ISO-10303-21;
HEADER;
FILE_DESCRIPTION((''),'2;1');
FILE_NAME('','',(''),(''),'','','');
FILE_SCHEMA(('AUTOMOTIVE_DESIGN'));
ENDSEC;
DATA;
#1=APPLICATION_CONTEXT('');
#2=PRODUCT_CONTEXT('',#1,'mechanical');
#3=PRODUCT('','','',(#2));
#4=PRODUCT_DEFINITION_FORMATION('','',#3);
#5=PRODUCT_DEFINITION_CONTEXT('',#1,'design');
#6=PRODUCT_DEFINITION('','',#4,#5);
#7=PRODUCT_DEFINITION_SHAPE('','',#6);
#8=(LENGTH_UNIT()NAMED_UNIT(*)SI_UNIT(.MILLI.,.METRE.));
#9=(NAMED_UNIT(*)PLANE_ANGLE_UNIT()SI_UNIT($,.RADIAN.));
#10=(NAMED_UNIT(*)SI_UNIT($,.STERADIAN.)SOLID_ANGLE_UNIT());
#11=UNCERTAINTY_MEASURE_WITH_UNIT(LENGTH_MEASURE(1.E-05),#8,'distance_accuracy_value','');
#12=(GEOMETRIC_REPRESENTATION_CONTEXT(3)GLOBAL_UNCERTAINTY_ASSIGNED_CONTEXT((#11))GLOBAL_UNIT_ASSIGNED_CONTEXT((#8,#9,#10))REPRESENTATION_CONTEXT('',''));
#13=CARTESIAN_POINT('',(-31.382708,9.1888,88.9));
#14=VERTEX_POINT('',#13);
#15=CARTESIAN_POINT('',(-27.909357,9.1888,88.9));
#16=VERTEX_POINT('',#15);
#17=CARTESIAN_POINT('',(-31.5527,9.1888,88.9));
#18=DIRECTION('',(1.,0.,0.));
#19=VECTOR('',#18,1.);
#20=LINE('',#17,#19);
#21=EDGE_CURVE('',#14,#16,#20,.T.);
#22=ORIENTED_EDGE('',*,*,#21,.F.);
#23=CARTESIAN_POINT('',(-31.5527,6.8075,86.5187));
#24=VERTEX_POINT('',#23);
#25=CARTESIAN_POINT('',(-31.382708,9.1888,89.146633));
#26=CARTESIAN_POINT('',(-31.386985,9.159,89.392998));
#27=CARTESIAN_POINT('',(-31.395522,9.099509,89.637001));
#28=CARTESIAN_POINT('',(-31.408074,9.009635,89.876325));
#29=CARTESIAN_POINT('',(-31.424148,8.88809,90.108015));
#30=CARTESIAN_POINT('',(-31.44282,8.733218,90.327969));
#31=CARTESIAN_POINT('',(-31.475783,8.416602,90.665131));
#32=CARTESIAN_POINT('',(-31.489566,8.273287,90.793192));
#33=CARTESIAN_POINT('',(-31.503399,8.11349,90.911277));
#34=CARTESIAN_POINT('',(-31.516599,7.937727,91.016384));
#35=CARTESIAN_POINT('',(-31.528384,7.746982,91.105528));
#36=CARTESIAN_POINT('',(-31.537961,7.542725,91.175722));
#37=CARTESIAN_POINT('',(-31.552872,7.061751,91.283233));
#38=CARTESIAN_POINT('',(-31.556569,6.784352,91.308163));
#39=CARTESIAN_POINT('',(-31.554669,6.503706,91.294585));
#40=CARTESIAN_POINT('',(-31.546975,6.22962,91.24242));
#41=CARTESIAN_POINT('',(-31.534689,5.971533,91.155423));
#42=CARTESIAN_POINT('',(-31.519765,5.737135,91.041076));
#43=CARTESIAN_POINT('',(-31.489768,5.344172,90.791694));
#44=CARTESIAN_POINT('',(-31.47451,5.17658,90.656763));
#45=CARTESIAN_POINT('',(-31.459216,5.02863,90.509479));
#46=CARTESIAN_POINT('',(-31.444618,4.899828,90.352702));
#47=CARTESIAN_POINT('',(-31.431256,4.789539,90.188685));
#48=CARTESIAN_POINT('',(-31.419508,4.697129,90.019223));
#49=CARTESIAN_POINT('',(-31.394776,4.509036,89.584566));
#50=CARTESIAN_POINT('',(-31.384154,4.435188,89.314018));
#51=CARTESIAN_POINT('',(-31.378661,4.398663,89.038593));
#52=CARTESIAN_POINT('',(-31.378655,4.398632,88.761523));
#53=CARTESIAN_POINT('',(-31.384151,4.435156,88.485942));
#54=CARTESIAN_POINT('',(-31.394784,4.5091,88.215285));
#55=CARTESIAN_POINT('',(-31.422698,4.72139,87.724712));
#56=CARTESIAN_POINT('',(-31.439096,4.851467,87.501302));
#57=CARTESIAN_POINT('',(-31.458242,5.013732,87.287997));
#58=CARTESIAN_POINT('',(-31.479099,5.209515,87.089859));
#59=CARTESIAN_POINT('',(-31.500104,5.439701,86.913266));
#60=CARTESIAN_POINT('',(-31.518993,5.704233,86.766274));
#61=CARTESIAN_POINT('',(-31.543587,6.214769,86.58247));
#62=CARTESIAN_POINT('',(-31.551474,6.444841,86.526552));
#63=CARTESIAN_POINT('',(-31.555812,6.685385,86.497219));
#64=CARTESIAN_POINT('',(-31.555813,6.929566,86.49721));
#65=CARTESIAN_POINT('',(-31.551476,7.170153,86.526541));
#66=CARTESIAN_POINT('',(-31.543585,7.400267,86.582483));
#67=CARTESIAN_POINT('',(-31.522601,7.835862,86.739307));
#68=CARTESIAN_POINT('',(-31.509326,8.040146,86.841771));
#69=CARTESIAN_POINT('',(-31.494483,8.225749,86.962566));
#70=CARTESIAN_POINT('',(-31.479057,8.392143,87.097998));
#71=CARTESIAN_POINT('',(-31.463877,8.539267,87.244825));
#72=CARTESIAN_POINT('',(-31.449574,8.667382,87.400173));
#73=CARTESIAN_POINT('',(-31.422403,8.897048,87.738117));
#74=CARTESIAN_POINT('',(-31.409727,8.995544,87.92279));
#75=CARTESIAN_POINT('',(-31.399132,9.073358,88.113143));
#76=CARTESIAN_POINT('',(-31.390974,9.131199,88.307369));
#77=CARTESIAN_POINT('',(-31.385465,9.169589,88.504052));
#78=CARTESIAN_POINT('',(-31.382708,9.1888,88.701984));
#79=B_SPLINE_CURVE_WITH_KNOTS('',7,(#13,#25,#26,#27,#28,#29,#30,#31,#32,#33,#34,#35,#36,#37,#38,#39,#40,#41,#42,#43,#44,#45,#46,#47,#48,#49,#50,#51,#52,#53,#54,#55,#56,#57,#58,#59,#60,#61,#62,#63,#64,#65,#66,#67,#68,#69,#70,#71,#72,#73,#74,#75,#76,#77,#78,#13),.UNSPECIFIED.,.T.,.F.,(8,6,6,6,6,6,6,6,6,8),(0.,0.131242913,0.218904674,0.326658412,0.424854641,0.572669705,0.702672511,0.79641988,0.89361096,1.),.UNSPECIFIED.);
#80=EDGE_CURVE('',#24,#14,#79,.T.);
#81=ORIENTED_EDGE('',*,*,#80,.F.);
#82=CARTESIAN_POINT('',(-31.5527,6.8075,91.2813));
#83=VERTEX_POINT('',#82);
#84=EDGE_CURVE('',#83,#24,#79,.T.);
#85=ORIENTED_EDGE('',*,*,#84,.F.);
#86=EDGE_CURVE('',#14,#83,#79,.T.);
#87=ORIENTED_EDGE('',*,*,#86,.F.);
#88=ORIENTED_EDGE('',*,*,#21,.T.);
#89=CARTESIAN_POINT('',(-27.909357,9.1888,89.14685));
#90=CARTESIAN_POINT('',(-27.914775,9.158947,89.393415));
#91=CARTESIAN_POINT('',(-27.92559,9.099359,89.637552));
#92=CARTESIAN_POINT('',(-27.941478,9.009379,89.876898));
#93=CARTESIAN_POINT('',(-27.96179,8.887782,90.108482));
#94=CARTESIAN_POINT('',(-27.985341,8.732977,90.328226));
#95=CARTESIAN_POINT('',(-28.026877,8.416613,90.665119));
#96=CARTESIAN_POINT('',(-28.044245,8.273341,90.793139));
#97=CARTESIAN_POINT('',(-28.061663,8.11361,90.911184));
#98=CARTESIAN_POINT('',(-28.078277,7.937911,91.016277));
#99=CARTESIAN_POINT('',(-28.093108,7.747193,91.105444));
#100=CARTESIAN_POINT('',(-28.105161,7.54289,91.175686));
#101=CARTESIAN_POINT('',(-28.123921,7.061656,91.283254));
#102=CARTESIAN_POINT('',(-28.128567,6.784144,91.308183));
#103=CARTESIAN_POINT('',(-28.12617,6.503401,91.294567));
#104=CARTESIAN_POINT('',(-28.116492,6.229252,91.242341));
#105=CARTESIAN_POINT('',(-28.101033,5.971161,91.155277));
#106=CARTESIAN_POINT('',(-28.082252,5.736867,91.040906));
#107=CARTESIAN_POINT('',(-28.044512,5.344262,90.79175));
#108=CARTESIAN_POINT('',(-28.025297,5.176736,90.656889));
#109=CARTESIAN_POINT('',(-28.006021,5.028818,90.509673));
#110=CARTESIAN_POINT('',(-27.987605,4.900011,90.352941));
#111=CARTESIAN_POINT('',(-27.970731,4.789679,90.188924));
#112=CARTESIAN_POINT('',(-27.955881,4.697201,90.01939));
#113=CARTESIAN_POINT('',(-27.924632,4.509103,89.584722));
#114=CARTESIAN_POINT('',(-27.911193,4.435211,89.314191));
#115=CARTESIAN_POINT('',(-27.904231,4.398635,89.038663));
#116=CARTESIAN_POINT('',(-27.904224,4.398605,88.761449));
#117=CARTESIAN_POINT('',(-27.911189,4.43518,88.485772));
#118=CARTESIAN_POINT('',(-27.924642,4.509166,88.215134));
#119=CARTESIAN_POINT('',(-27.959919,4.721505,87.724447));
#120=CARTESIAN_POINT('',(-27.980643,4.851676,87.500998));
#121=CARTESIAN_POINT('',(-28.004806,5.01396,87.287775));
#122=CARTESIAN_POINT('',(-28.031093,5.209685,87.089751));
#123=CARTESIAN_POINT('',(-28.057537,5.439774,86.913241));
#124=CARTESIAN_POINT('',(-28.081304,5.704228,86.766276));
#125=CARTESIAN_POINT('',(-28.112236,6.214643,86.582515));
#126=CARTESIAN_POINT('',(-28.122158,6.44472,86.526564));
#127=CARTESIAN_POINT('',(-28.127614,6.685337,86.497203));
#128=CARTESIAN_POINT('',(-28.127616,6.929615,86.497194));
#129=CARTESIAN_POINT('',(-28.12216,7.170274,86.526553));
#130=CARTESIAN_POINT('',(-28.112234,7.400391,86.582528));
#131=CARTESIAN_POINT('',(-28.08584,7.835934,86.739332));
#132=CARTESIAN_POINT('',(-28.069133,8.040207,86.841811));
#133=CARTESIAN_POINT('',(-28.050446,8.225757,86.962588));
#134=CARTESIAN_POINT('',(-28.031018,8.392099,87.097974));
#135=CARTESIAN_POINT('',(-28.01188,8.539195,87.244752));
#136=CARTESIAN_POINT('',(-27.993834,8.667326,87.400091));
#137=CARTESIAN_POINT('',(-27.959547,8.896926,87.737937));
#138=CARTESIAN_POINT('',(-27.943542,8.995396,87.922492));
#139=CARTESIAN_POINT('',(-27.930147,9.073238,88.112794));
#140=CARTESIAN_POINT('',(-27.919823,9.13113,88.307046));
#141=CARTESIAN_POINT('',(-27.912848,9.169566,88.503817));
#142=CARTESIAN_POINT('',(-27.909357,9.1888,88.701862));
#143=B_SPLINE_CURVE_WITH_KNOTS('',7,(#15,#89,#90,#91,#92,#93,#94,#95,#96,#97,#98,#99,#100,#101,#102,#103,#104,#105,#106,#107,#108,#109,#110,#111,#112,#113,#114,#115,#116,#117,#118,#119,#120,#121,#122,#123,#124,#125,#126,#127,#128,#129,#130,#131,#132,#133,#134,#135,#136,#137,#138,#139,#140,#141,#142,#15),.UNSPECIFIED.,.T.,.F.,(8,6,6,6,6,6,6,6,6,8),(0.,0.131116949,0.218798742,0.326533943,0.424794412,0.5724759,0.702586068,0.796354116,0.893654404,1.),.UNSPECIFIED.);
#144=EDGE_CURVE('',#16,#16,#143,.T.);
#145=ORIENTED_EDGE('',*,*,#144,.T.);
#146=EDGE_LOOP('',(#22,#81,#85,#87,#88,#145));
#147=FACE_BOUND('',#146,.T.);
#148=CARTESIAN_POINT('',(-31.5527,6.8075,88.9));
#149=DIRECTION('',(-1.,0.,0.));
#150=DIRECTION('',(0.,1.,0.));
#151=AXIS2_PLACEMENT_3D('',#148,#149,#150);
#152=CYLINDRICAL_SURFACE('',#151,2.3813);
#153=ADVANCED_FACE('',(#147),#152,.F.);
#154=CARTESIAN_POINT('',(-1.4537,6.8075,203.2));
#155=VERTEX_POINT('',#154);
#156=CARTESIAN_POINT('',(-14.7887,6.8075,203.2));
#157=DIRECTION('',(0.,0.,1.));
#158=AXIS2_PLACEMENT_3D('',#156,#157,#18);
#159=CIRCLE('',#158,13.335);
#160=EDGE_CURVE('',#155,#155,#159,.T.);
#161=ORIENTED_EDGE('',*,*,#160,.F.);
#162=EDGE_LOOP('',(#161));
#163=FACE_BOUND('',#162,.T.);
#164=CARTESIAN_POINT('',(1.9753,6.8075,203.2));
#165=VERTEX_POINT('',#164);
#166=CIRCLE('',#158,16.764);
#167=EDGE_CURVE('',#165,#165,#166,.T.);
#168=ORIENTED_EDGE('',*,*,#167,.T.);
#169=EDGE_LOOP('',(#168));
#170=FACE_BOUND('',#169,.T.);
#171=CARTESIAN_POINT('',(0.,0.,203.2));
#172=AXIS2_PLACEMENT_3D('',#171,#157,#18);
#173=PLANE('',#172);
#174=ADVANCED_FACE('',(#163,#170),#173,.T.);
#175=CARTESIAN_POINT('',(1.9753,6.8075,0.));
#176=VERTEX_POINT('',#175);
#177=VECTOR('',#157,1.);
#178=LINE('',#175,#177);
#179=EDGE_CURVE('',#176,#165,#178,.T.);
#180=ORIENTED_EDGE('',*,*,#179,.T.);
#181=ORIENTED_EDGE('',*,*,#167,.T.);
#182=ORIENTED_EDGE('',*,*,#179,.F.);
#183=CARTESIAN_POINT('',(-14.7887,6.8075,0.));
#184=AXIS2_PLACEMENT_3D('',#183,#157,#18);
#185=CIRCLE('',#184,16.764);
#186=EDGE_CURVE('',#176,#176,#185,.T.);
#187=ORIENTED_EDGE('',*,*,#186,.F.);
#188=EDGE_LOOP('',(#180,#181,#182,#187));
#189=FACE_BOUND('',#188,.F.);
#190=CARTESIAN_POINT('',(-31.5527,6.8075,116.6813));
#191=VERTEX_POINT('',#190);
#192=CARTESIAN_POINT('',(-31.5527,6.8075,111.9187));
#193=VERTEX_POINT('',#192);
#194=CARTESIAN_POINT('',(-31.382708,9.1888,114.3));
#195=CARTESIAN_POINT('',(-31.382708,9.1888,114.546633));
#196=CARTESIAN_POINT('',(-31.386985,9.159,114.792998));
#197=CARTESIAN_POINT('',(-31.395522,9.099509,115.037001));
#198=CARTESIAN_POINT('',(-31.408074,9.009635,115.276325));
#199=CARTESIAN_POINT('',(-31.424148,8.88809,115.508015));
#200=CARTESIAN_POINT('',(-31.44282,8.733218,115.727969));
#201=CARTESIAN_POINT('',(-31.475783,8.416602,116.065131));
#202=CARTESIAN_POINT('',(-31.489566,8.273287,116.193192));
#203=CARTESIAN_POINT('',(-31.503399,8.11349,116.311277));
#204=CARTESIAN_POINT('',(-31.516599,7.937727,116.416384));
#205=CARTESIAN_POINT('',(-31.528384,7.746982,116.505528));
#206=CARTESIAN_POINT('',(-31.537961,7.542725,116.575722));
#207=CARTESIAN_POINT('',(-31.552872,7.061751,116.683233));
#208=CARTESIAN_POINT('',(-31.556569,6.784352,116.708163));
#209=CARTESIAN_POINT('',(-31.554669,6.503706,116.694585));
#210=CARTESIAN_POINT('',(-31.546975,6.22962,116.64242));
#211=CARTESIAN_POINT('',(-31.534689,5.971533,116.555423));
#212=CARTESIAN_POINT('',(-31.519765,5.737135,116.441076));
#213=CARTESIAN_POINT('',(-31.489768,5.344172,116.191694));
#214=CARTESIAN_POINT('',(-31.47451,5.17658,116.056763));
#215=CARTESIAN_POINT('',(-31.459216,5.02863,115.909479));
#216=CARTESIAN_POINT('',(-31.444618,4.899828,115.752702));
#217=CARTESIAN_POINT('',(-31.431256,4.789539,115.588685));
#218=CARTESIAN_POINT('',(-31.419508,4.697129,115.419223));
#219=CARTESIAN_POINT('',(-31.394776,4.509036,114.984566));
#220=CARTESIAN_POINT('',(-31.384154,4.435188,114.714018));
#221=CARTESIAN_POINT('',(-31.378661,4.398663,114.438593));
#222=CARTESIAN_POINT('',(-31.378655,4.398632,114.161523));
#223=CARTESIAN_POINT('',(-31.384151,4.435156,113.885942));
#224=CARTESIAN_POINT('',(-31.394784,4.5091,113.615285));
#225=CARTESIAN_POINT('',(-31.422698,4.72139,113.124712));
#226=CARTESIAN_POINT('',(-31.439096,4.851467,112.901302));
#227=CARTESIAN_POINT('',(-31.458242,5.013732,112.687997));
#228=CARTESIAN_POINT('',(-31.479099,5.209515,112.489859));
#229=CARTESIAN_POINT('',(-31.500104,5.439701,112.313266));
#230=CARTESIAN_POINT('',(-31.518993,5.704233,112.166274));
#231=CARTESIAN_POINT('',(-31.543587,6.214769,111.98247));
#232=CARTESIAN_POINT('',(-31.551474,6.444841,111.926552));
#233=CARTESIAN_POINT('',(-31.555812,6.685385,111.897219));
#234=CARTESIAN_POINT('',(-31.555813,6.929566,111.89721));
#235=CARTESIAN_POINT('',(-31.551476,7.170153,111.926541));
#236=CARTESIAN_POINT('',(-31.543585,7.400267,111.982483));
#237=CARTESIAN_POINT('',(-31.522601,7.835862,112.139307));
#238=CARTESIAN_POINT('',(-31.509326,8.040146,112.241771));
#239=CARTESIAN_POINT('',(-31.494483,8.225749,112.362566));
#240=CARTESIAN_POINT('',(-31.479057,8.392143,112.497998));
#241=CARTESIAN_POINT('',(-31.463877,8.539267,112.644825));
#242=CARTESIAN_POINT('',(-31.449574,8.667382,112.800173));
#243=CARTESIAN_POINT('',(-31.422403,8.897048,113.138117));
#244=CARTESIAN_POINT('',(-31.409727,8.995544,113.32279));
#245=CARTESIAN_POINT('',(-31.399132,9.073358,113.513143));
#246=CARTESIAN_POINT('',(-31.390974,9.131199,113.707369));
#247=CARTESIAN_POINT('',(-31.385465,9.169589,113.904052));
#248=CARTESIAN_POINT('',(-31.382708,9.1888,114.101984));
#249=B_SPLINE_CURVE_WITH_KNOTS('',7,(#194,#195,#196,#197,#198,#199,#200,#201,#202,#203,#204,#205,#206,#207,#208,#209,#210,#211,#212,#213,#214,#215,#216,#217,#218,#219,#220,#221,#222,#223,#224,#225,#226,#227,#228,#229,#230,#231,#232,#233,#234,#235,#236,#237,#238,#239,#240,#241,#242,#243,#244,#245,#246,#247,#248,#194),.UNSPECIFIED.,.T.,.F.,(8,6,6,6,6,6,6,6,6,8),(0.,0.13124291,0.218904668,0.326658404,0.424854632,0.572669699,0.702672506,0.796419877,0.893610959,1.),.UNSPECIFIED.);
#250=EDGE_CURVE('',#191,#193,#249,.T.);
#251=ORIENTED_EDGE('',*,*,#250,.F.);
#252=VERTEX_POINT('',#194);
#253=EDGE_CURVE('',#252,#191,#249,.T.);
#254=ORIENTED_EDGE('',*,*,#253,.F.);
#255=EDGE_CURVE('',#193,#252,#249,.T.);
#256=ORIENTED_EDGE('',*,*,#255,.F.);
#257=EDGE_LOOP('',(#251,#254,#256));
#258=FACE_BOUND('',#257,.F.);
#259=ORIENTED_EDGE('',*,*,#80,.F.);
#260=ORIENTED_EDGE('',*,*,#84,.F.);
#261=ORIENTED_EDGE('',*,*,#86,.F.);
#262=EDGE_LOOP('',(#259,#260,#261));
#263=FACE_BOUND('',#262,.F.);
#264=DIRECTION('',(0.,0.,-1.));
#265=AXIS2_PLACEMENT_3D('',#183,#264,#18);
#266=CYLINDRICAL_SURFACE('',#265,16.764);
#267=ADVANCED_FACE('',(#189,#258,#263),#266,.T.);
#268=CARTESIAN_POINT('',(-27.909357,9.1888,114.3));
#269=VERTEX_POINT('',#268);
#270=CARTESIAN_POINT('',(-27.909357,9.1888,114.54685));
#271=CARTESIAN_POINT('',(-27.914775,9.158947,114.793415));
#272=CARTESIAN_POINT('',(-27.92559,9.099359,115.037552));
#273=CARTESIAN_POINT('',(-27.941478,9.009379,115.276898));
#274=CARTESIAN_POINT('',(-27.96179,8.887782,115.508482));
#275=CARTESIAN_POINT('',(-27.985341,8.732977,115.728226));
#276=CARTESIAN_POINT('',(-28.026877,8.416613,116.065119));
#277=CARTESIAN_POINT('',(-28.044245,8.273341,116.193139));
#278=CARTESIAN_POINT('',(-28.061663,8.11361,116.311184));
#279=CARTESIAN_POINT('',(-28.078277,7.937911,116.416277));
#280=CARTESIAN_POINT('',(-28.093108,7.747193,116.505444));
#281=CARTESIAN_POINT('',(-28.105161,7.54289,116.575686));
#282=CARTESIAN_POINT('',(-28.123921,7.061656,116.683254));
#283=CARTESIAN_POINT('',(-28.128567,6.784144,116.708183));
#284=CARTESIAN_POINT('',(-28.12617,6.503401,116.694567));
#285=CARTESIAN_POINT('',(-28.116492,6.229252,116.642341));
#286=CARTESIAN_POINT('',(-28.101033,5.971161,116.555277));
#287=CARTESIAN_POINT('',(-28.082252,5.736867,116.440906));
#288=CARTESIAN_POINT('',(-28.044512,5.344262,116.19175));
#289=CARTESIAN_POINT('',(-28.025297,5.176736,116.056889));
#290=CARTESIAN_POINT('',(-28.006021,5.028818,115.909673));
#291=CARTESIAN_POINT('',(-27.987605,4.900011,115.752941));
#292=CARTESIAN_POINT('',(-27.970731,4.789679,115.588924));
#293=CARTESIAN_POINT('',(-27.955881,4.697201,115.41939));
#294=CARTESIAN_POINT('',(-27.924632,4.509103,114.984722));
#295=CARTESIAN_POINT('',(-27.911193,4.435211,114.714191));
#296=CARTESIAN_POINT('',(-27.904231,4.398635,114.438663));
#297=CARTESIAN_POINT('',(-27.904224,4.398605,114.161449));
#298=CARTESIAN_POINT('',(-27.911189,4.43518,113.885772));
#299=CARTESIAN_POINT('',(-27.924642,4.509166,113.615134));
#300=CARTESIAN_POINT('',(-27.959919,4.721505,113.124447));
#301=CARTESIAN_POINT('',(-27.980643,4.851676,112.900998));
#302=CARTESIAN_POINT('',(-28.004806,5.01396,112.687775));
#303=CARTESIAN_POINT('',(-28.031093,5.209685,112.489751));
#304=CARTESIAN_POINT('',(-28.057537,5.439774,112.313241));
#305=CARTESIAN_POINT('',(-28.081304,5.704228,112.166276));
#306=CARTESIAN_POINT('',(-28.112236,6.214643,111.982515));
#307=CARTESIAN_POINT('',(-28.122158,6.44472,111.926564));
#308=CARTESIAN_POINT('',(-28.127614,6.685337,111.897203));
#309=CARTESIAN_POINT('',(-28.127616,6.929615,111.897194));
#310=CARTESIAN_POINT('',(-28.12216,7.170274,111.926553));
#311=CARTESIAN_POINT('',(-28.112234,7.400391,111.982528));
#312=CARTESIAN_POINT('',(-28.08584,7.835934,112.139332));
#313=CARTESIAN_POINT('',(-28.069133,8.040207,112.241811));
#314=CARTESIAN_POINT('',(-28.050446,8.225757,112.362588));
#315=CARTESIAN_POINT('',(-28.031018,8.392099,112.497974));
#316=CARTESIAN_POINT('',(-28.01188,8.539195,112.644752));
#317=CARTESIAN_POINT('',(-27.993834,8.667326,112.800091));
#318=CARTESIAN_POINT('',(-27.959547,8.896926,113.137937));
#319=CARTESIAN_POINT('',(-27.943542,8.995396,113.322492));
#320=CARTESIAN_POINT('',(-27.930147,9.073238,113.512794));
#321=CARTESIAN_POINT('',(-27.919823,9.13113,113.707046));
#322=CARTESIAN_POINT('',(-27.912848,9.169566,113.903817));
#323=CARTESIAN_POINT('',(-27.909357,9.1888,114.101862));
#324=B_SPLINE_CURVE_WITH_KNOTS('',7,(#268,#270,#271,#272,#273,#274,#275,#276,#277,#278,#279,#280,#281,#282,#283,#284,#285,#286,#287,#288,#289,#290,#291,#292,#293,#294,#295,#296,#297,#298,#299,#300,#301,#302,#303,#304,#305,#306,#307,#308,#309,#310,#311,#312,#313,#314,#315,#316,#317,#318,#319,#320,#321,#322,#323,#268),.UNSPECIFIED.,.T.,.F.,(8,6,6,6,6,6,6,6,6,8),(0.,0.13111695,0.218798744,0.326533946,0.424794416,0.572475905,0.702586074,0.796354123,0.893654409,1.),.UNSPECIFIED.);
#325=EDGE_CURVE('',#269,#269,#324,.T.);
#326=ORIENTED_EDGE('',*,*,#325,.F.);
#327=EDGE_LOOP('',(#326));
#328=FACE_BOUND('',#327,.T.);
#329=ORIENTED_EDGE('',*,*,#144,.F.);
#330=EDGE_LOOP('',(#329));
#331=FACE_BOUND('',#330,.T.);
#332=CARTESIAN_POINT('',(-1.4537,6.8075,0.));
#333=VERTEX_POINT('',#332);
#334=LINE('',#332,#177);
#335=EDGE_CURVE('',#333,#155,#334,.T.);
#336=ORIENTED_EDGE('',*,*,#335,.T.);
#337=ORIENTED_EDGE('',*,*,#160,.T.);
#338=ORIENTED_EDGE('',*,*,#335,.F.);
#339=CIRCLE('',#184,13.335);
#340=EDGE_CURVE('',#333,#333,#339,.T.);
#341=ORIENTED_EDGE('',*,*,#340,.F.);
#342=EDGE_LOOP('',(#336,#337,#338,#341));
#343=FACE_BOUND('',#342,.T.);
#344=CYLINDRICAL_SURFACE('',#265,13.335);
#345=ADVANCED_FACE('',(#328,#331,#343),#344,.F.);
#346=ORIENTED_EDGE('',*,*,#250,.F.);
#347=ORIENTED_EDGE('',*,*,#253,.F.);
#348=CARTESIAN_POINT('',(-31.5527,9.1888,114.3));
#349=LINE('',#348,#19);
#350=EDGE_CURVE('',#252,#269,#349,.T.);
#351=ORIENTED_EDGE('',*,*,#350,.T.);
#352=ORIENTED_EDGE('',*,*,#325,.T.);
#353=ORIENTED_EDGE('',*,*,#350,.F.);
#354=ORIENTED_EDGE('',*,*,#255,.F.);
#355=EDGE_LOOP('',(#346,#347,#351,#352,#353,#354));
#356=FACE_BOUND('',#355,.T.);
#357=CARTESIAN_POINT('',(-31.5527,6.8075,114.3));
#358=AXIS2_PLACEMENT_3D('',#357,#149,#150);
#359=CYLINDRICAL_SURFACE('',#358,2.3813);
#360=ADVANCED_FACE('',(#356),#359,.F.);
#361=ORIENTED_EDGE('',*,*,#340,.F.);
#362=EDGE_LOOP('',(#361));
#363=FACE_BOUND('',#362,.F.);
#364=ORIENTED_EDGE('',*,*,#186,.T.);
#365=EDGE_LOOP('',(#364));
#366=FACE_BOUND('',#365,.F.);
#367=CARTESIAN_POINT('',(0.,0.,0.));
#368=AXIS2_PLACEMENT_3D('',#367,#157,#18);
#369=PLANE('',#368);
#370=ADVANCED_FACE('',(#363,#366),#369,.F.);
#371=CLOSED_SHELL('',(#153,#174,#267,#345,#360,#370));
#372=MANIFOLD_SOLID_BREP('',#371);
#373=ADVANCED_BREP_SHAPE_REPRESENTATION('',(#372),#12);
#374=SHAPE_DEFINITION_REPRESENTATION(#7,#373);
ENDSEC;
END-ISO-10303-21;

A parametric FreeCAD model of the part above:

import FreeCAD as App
import Part
import Sketcher
from FreeCAD import Vector
Q = App.Units.Quantity

doc = App.newDocument("Part")
body = doc.addObject("PartDesign::Body", "Body")

# Sketch on XY plane
sketch1 = body.newObject("Sketcher::SketchObject", "Sketch")
sketch1.AttachmentSupport = (doc.getObject("XY_Plane"), [""])
sketch1.MapMode = "FlatFace"
sketch1.addGeometry([
    Part.Circle(Vector(-15, 7, 0), Vector(0, 0, 1), 17),
    Part.Circle(Vector(-15, 7, 0), Vector(0, 0, 1), 13),
], False)
sketch1.addConstraint([
    Sketcher.Constraint("Coincident", 1, 3, 0, 3),
    Sketcher.Constraint("Diameter", 0, Q("1.32 in")),
    Sketcher.Constraint("Diameter", 1, Q("1.05 in")),
    Sketcher.Constraint("DistanceY", -1, 1, 0, 3, Q("0.268 in")),
    Sketcher.Constraint("DistanceX", 0, 3, -1, 1, 14.7887),
])
pad1 = body.newObject("PartDesign::Pad", "Pad")
pad1.Profile = sketch1
pad1.Length = Q("8 in")

# Sketch on YZ plane
sketch2 = body.newObject("Sketcher::SketchObject", "Sketch001")
sketch2.AttachmentSupport = (doc.getObject("YZ_Plane"), [""])
sketch2.MapMode = "FlatFace"
sketch2.AttachmentOffset = App.Placement(Vector(0, 0, -31.5527), App.Rotation())
sketch2.addGeometry([
    Part.Circle(Vector(6.8, 88.9, 0), Vector(0, 0, 1), 2.4),
    Part.Circle(Vector(6.8, 114.3, 0), Vector(0, 0, 1), 2.4),
], False)
sketch2.addConstraint([
    Sketcher.Constraint("Equal", 0, 1),
    Sketcher.Constraint("Vertical", 0, 3, 1, 3),
    Sketcher.Constraint("Diameter", 0, Q("0.1875 in")),
    Sketcher.Constraint("DistanceY", 0, 3, 1, 3, Q("1 in")),
    Sketcher.Constraint("DistanceY", -1, 1, 0, 3, Q("3.5 in")),
    Sketcher.Constraint("DistanceX", -1, 1, 0, 3, Q("0.268 in")),
])
pocket1 = body.newObject("PartDesign::Pocket", "Pocket")
pocket1.Profile = sketch2
pocket1.Length = 3.6433
pocket1.Reversed = True

doc.recompute()
